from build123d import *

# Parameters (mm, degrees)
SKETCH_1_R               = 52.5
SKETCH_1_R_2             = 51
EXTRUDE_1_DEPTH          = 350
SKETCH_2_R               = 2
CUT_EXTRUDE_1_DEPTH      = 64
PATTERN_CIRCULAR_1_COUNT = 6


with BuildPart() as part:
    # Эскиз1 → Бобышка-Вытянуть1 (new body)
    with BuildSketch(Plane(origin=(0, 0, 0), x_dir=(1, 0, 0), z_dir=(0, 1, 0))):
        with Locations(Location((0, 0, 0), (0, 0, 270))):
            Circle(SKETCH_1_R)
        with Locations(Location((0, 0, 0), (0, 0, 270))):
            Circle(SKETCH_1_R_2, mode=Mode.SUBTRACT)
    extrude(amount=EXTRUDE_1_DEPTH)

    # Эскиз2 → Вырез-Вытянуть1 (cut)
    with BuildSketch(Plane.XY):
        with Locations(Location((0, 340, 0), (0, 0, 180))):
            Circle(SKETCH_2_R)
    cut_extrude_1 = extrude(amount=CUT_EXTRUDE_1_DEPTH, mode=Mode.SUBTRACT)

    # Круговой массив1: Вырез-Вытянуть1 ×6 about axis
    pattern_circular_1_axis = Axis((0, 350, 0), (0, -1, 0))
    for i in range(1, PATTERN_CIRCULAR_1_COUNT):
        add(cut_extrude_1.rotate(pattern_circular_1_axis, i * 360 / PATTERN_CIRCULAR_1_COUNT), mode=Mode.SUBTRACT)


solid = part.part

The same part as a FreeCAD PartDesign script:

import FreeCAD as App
import Part
import Sketcher

doc = App.newDocument("Part")
body = doc.addObject("PartDesign::Body", "Body")

# Sketch on XZ plane
sketch1 = body.newObject("Sketcher::SketchObject", "Sketch")
sketch1.AttachmentSupport = (doc.getObject("XZ_Plane"), [""])
sketch1.MapMode = "FlatFace"
sketch1.addGeometry(Part.Circle(App.Vector(0, 0, 0), App.Vector(0, 0, 1), 52.5), False)
sketch1.addGeometry(Part.Circle(App.Vector(0, 0, 0), App.Vector(0, 0, 1), 51), False)
sketch1.addConstraint(Sketcher.Constraint("Coincident", 0, 3, -1, 1))
sketch1.addConstraint(Sketcher.Constraint("Coincident", 1, 3, -1, 1))
sketch1.addConstraint(Sketcher.Constraint("Diameter", 0, 105.0))
sketch1.addConstraint(Sketcher.Constraint("Diameter", 1, 102.0))
pad1 = body.newObject("PartDesign::Pad", "Pad")
pad1.Profile = sketch1
pad1.Length = 350
pad1.Reversed = True

# Sketch on XY plane
sketch2 = body.newObject("Sketcher::SketchObject", "Sketch001")
sketch2.AttachmentSupport = (doc.getObject("XY_Plane"), [""])
sketch2.MapMode = "FlatFace"
sketch2.addGeometry(Part.Circle(App.Vector(0, 340, 0), App.Vector(0, 0, 1), 2), False)
sketch2.addConstraint(Sketcher.Constraint("PointOnObject", 0, 3, -2))
sketch2.addConstraint(Sketcher.Constraint("Diameter", 0, 4.0))
sketch2.addConstraint(Sketcher.Constraint("DistanceY", -1, 1, 0, 3, 340.0))
pocket1 = body.newObject("PartDesign::Pocket", "Pocket")
pocket1.Profile = sketch2
pocket1.Length = 64
pocket1.Reversed = True
doc.recompute()

polarpattern = body.newObject("PartDesign::PolarPattern", "PolarPattern")
polarpattern.Originals = [pocket1]
polarpattern.Axis = (doc.getObject("Y_Axis"), [""])
polarpattern.Angle = 360
polarpattern.Occurrences = 6
body.Tip = polarpattern

doc.recompute()
